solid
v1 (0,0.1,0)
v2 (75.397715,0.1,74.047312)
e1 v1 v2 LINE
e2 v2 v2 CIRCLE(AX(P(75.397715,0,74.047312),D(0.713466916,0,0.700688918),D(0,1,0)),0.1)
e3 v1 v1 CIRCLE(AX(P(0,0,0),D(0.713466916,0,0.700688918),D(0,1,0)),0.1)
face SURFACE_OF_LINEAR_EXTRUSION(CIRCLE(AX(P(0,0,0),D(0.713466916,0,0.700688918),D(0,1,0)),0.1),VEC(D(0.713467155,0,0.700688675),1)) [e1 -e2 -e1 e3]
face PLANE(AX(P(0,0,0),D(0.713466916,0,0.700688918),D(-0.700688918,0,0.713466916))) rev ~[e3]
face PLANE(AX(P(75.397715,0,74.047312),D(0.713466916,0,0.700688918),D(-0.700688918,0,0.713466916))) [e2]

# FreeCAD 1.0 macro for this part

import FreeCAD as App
import Part
import Sketcher

doc = App.newDocument("Part")
body = doc.addObject("PartDesign::Body", "Body")

sketch1 = body.newObject("Sketcher::SketchObject", "Sketch")
sketch1.Placement = App.Placement(App.Vector(75.397715, 0, 74.047312), App.Rotation(App.Vector(0, 1, 0), App.Vector(-0.700688918, 0, 0.713466916), App.Vector(0.713466916, 0, 0.700688918), "ZXY"))
sketch1.addGeometry(Part.Circle(App.Vector(0, 0, 0), App.Vector(0, 0, 1), 0.1), False)
sketch1.addConstraint([
    Sketcher.Constraint("Coincident", 0, 3, -1, 1),
    Sketcher.Constraint("Diameter", 0, 0.2),
])

sketch2 = body.newObject("Sketcher::SketchObject", "Sketch001")
sketch2.Placement = App.Placement(App.Vector(0, 0, 0), App.Rotation(App.Vector(0.713467155, 0, 0.700688675), App.Vector(0, 1.000000001, 0), App.Vector(-0.700688675, 0, 0.713467155), "ZXY"))
sketch2.addGeometry(Part.LineSegment(App.Vector(0, 0, 0), App.Vector(106, 0, 0)), False)
sketch2.addConstraint([
    Sketcher.Constraint("Horizontal", 0),
    Sketcher.Constraint("Coincident", 0, 1, -1, 1),
    Sketcher.Constraint("DistanceX", 0, 1, 0, 2, 105.677906),
])
doc.recompute()

additivepipe = body.newObject("PartDesign::AdditivePipe", "AdditivePipe")
additivepipe.Profile = sketch1
additivepipe.Spine = (sketch2, ["Edge1"])

doc.recompute()
